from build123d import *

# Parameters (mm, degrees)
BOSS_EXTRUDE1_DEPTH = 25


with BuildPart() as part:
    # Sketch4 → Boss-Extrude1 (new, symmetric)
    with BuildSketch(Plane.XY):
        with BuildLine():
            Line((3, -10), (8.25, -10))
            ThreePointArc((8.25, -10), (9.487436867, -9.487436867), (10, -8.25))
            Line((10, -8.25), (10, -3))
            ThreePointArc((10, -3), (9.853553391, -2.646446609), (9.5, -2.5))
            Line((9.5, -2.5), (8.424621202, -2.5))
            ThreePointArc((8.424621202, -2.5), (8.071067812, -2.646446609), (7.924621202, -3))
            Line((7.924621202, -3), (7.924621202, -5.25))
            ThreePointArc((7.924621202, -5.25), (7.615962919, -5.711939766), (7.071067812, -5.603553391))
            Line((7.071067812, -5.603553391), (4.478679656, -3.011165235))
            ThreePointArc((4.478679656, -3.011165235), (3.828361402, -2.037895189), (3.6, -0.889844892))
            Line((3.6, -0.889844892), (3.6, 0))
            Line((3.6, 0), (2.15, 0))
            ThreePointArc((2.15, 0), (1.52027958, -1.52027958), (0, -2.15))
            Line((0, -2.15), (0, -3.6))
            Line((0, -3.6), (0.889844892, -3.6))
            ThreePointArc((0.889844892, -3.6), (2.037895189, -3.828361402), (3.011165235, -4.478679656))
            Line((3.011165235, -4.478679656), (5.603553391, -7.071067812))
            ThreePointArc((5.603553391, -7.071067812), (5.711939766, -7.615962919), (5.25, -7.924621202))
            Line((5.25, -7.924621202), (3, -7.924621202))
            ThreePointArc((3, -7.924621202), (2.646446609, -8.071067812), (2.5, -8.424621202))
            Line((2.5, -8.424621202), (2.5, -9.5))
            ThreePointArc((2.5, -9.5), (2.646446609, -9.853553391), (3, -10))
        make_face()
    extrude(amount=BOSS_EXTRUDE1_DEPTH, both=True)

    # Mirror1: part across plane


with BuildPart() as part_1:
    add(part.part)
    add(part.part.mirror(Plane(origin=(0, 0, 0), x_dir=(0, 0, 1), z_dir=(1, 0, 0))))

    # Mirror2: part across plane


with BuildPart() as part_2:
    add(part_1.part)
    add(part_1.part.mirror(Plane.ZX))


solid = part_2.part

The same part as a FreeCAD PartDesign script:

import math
import FreeCAD as App
import Part
import Sketcher
from FreeCAD import Vector

doc = App.newDocument("Part")
body = doc.addObject("PartDesign::Body", "Body")

sketch1 = body.newObject("Sketcher::SketchObject", "Sketch")
sketch1.AttachmentSupport = (doc.getObject("XY_Plane"), [""])
sketch1.MapMode = "FlatFace"
sketch1.addGeometry([
    Part.LineSegment(Vector(3, -10, 0), Vector(8.25, -10, 0)),
    Part.ArcOfCircle(Part.Circle(Vector(8.25, -8.25, 0), Vector(0, 0, 1), 1.75), math.radians(-90), math.radians(0)),
    Part.LineSegment(Vector(10, -8.25, 0), Vector(10, -3, 0)),
    Part.ArcOfCircle(Part.Circle(Vector(9.5, -3, 0), Vector(0, 0, 1), 0.5), math.radians(0), math.radians(90)),
    Part.LineSegment(Vector(9.5, -2.5, 0), Vector(8.424621, -2.5, 0)),
    Part.ArcOfCircle(Part.Circle(Vector(8.424621, -3, 0), Vector(0, 0, 1), 0.5), math.radians(90), math.radians(180)),
    Part.LineSegment(Vector(7.924621, -3, 0), Vector(7.924621, -5.25, 0)),
    Part.ArcOfCircle(Part.Circle(Vector(7.424621, -5.25, 0), Vector(0, 0, 1), 0.5), math.radians(-135), math.radians(0)),
    Part.LineSegment(Vector(7.071068, -5.603553, 0), Vector(4.47868, -3.011165, 0)),
    Part.ArcOfCircle(Part.Circle(Vector(6.6, -0.889845, 0), Vector(0, 0, 1), 3), math.radians(180), math.radians(225)),
    Part.LineSegment(Vector(3.6, -0.889845, 0), Vector(3.6, 0, 0)),
    Part.LineSegment(Vector(3.6, 0, 0), Vector(2.15, 0, 0)),
    Part.ArcOfCircle(Part.Circle(Vector(0, 0, 0), Vector(0, 0, 1), 2.15), math.radians(-90), math.radians(0)),
    Part.LineSegment(Vector(0, -2.15, 0), Vector(0, -3.6, 0)),
    Part.LineSegment(Vector(0, -3.6, 0), Vector(0.889845, -3.6, 0)),
    Part.ArcOfCircle(Part.Circle(Vector(0.889845, -6.6, 0), Vector(0, 0, 1), 3), math.radians(45), math.radians(90)),
    Part.LineSegment(Vector(3.011165, -4.47868, 0), Vector(5.603553, -7.071068, 0)),
    Part.ArcOfCircle(Part.Circle(Vector(5.25, -7.424621, 0), Vector(0, 0, 1), 0.5), math.radians(-90), math.radians(45)),
    Part.LineSegment(Vector(5.25, -7.924621, 0), Vector(3, -7.924621, 0)),
    Part.ArcOfCircle(Part.Circle(Vector(3, -8.424621, 0), Vector(0, 0, 1), 0.5), math.radians(90), math.radians(180)),
    Part.LineSegment(Vector(2.5, -8.424621, 0), Vector(2.5, -9.5, 0)),
    Part.ArcOfCircle(Part.Circle(Vector(3, -9.5, 0), Vector(0, 0, 1), 0.5), math.radians(180), math.radians(270)),
], False)
sketch1.addConstraint([
    Sketcher.Constraint("Tangent", 0, 2, 1, 1),
    Sketcher.Constraint("Tangent", 1, 2, 2, 1),
    Sketcher.Constraint("Tangent", 2, 2, 3, 1),
    Sketcher.Constraint("Tangent", 3, 2, 4, 1),
    Sketcher.Constraint("Tangent", 4, 2, 5, 1),
    Sketcher.Constraint("Tangent", 5, 2, 6, 1),
    Sketcher.Constraint("Tangent", 6, 2, 7, 2),
    Sketcher.Constraint("Tangent", 7, 1, 8, 1),
    Sketcher.Constraint("Tangent", 8, 2, 9, 2),
    Sketcher.Constraint("Tangent", 9, 1, 10, 1),
    Sketcher.Constraint("Coincident", 10, 2, 11, 1),
    Sketcher.Constraint("Coincident", 11, 2, 12, 2),
    Sketcher.Constraint("Coincident", 12, 1, 13, 1),
    Sketcher.Constraint("Coincident", 13, 2, 14, 1),
    Sketcher.Constraint("Tangent", 14, 2, 15, 2),
    Sketcher.Constraint("Tangent", 15, 1, 16, 1),
    Sketcher.Constraint("Tangent", 16, 2, 17, 2),
    Sketcher.Constraint("Tangent", 17, 1, 18, 1),
    Sketcher.Constraint("Tangent", 18, 2, 19, 1),
    Sketcher.Constraint("Tangent", 19, 2, 20, 1),
    Sketcher.Constraint("Tangent", 20, 2, 21, 1),
    Sketcher.Constraint("Tangent", 21, 2, 0, 1),
    Sketcher.Constraint("Horizontal", 0),
    Sketcher.Constraint("Vertical", 2),
    Sketcher.Constraint("Horizontal", 4),
    Sketcher.Constraint("Vertical", 6),
    Sketcher.Constraint("Vertical", 10),
    Sketcher.Constraint("Horizontal", 11),
    Sketcher.Constraint("Vertical", 13),
    Sketcher.Constraint("Horizontal", 14),
    Sketcher.Constraint("Horizontal", 18),
    Sketcher.Constraint("Vertical", 20),
    Sketcher.Constraint("Coincident", 12, 3, -1, 1),
    Sketcher.Constraint("Equal", 3, 5),
    Sketcher.Constraint("Equal", 5, 7),
    Sketcher.Constraint("Equal", 9, 15),
    Sketcher.Constraint("Equal", 7, 17),
    Sketcher.Constraint("Equal", 17, 19),
    Sketcher.Constraint("Equal", 19, 21),
    Sketcher.Constraint("PointOnObject", 10, 2, -1),
    Sketcher.Constraint("PointOnObject", 12, 1, -2),
    Sketcher.Constraint("Parallel", 8, 16),
    Sketcher.Constraint("Equal", 0, 2),
    Sketcher.Constraint("Equal", 18, 6),
    Sketcher.Constraint("Equal", 14, 10),
    Sketcher.Constraint("Equal", 11, 13),
    Sketcher.Constraint("Equal", 4, 20),
    Sketcher.Constraint("Equal", 8, 16),
    Sketcher.Constraint("Radius", 9, 3.0),
    Sketcher.Constraint("Radius", 3, 0.5),
    Sketcher.Constraint("Radius", 1, 1.75),
    Sketcher.Constraint("Radius", 12, 2.15),
    Sketcher.Constraint("DistanceY", 3, 3, -1, 1, 3.0),
    Sketcher.Constraint("DistanceY", 0, 2, -1, 1, 10.0),
    Sketcher.Constraint("DistanceY", 1, 3, 7, 3, 3.0),
    Sketcher.Constraint("DistanceX", 11, 2, 11, 1, 1.45),
    Sketcher.Constraint("DistanceX", 4, 2, 4, 1, 1.075379),
])
pad1 = body.newObject("PartDesign::Pad", "Pad")
pad1.Profile = sketch1
pad1.Length = 50
pad1.Midplane = True
body2 = doc.addObject("PartDesign::Body", "Body001")
doc.recompute()

body2.BaseFeature = body
doc.recompute()

mirroring = doc.addObject("Part::Mirroring", "Mirroring")
mirroring.Source = body
mirroring.Base = Vector(0, 0, 0)
mirroring.Normal = Vector(1, 0, 0)
body3 = doc.addObject("PartDesign::Body", "Body002")
body3.BaseFeature = mirroring
boolean = body2.newObject("PartDesign::Boolean", "Boolean")
boolean.Type = "Fuse"
boolean.addObjects([body3])
doc.recompute()
body4 = doc.addObject("PartDesign::Body", "Body003")
doc.recompute()

body4.BaseFeature = body2
doc.recompute()

mirroring2 = doc.addObject("Part::Mirroring", "Mirroring001")
mirroring2.Source = body2
mirroring2.Base = Vector(0, 0, 0)
mirroring2.Normal = Vector(0, 1, 0)
body5 = doc.addObject("PartDesign::Body", "Body004")
body5.BaseFeature = mirroring2
boolean2 = body4.newObject("PartDesign::Boolean", "Boolean001")
boolean2.Type = "Fuse"
boolean2.addObjects([body5])
doc.recompute()
mirroring.Visibility = False
mirroring2.Visibility = False

doc.recompute()
